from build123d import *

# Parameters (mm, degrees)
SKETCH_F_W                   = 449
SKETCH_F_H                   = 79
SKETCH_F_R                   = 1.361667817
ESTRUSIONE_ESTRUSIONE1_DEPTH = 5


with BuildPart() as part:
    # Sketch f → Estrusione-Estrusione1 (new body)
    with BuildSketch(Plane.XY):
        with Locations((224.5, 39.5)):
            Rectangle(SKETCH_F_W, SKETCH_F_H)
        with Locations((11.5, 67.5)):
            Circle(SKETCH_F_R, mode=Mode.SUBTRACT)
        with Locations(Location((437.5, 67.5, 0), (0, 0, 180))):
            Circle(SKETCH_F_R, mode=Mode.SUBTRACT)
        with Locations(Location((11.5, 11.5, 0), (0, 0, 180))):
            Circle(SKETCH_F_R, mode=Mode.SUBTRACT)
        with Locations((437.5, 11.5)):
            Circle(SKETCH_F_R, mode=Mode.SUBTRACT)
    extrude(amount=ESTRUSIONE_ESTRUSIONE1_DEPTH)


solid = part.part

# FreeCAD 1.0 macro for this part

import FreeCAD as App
import Part
import Sketcher

V = App.Vector


def add_polygon(sketch, points):
    """Adds a closed chain of lines whose ends are joined by coincident constraints."""
    first, n = sketch.GeometryCount, len(points)
    for a, b in zip(points, points[1:] + points[:1]):
        sketch.addGeometry(Part.LineSegment(App.Vector(*a, 0), App.Vector(*b, 0)), False)
    for i in range(n):
        sketch.addConstraint(Sketcher.Constraint("Coincident", first + i, 2, first + (i + 1) % n, 1))

doc = App.newDocument("Part")
body = doc.addObject("PartDesign::Body", "Body")

# Sketch on XY plane
sketch1 = body.newObject("Sketcher::SketchObject", "Sketch")
sketch1.AttachmentSupport = (doc.getObject("XY_Plane"), [""])
sketch1.MapMode = "FlatFace"
add_polygon(sketch1, [(0, 79), (0, 0), (449, 0), (449, 79)])  # lines 0-3
sketch1.addGeometry(Part.Circle(V(11.5, 11.5, 0), V(0, 0, 1), 1.4), False)  # 4
sketch1.addGeometry(Part.Circle(V(437.5, 11.5, 0), V(0, 0, 1), 1.4), False)  # 5
sketch1.addGeometry(Part.Circle(V(11.5, 67.5, 0), V(0, 0, 1), 1.4), False)  # 6
sketch1.addGeometry(Part.Circle(V(437.5, 67.5, 0), V(0, 0, 1), 1.4), False)  # 7
sketch1.addConstraint([
    Sketcher.Constraint("Vertical", 0),
    Sketcher.Constraint("Horizontal", 1),
    Sketcher.Constraint("Vertical", 2),
    Sketcher.Constraint("Horizontal", 3),
    Sketcher.Constraint("Coincident", 0, 2, -1, 1),
    Sketcher.Constraint("Equal", 4, 5),
    Sketcher.Constraint("Equal", 5, 6),
    Sketcher.Constraint("Equal", 6, 7),
    Sketcher.Constraint("Horizontal", 4, 3, 5, 3),
    Sketcher.Constraint("Horizontal", 6, 3, 7, 3),
    Sketcher.Constraint("Vertical", 4, 3, 6, 3),
    Sketcher.Constraint("Vertical", 5, 3, 7, 3),
    Sketcher.Constraint("DistanceX", 1, 1, 1, 2, 449.0),
    Sketcher.Constraint("DistanceY", 0, 2, 0, 1, 79.0),
    Sketcher.Constraint("DistanceX", 4, 3, 5, 3, 426.0),
    Sketcher.Constraint("DistanceY", 4, 3, 6, 3, 56.0),
    Sketcher.Constraint("DistanceX", -1, 1, 4, 3, 11.5),
    Sketcher.Constraint("DistanceY", -1, 1, 4, 3, 11.5),
    Sketcher.Constraint("Diameter", 4, 2.723336),
])
pad1 = body.newObject("PartDesign::Pad", "Pad")
pad1.Profile = sketch1
pad1.Length = 5

doc.recompute()
